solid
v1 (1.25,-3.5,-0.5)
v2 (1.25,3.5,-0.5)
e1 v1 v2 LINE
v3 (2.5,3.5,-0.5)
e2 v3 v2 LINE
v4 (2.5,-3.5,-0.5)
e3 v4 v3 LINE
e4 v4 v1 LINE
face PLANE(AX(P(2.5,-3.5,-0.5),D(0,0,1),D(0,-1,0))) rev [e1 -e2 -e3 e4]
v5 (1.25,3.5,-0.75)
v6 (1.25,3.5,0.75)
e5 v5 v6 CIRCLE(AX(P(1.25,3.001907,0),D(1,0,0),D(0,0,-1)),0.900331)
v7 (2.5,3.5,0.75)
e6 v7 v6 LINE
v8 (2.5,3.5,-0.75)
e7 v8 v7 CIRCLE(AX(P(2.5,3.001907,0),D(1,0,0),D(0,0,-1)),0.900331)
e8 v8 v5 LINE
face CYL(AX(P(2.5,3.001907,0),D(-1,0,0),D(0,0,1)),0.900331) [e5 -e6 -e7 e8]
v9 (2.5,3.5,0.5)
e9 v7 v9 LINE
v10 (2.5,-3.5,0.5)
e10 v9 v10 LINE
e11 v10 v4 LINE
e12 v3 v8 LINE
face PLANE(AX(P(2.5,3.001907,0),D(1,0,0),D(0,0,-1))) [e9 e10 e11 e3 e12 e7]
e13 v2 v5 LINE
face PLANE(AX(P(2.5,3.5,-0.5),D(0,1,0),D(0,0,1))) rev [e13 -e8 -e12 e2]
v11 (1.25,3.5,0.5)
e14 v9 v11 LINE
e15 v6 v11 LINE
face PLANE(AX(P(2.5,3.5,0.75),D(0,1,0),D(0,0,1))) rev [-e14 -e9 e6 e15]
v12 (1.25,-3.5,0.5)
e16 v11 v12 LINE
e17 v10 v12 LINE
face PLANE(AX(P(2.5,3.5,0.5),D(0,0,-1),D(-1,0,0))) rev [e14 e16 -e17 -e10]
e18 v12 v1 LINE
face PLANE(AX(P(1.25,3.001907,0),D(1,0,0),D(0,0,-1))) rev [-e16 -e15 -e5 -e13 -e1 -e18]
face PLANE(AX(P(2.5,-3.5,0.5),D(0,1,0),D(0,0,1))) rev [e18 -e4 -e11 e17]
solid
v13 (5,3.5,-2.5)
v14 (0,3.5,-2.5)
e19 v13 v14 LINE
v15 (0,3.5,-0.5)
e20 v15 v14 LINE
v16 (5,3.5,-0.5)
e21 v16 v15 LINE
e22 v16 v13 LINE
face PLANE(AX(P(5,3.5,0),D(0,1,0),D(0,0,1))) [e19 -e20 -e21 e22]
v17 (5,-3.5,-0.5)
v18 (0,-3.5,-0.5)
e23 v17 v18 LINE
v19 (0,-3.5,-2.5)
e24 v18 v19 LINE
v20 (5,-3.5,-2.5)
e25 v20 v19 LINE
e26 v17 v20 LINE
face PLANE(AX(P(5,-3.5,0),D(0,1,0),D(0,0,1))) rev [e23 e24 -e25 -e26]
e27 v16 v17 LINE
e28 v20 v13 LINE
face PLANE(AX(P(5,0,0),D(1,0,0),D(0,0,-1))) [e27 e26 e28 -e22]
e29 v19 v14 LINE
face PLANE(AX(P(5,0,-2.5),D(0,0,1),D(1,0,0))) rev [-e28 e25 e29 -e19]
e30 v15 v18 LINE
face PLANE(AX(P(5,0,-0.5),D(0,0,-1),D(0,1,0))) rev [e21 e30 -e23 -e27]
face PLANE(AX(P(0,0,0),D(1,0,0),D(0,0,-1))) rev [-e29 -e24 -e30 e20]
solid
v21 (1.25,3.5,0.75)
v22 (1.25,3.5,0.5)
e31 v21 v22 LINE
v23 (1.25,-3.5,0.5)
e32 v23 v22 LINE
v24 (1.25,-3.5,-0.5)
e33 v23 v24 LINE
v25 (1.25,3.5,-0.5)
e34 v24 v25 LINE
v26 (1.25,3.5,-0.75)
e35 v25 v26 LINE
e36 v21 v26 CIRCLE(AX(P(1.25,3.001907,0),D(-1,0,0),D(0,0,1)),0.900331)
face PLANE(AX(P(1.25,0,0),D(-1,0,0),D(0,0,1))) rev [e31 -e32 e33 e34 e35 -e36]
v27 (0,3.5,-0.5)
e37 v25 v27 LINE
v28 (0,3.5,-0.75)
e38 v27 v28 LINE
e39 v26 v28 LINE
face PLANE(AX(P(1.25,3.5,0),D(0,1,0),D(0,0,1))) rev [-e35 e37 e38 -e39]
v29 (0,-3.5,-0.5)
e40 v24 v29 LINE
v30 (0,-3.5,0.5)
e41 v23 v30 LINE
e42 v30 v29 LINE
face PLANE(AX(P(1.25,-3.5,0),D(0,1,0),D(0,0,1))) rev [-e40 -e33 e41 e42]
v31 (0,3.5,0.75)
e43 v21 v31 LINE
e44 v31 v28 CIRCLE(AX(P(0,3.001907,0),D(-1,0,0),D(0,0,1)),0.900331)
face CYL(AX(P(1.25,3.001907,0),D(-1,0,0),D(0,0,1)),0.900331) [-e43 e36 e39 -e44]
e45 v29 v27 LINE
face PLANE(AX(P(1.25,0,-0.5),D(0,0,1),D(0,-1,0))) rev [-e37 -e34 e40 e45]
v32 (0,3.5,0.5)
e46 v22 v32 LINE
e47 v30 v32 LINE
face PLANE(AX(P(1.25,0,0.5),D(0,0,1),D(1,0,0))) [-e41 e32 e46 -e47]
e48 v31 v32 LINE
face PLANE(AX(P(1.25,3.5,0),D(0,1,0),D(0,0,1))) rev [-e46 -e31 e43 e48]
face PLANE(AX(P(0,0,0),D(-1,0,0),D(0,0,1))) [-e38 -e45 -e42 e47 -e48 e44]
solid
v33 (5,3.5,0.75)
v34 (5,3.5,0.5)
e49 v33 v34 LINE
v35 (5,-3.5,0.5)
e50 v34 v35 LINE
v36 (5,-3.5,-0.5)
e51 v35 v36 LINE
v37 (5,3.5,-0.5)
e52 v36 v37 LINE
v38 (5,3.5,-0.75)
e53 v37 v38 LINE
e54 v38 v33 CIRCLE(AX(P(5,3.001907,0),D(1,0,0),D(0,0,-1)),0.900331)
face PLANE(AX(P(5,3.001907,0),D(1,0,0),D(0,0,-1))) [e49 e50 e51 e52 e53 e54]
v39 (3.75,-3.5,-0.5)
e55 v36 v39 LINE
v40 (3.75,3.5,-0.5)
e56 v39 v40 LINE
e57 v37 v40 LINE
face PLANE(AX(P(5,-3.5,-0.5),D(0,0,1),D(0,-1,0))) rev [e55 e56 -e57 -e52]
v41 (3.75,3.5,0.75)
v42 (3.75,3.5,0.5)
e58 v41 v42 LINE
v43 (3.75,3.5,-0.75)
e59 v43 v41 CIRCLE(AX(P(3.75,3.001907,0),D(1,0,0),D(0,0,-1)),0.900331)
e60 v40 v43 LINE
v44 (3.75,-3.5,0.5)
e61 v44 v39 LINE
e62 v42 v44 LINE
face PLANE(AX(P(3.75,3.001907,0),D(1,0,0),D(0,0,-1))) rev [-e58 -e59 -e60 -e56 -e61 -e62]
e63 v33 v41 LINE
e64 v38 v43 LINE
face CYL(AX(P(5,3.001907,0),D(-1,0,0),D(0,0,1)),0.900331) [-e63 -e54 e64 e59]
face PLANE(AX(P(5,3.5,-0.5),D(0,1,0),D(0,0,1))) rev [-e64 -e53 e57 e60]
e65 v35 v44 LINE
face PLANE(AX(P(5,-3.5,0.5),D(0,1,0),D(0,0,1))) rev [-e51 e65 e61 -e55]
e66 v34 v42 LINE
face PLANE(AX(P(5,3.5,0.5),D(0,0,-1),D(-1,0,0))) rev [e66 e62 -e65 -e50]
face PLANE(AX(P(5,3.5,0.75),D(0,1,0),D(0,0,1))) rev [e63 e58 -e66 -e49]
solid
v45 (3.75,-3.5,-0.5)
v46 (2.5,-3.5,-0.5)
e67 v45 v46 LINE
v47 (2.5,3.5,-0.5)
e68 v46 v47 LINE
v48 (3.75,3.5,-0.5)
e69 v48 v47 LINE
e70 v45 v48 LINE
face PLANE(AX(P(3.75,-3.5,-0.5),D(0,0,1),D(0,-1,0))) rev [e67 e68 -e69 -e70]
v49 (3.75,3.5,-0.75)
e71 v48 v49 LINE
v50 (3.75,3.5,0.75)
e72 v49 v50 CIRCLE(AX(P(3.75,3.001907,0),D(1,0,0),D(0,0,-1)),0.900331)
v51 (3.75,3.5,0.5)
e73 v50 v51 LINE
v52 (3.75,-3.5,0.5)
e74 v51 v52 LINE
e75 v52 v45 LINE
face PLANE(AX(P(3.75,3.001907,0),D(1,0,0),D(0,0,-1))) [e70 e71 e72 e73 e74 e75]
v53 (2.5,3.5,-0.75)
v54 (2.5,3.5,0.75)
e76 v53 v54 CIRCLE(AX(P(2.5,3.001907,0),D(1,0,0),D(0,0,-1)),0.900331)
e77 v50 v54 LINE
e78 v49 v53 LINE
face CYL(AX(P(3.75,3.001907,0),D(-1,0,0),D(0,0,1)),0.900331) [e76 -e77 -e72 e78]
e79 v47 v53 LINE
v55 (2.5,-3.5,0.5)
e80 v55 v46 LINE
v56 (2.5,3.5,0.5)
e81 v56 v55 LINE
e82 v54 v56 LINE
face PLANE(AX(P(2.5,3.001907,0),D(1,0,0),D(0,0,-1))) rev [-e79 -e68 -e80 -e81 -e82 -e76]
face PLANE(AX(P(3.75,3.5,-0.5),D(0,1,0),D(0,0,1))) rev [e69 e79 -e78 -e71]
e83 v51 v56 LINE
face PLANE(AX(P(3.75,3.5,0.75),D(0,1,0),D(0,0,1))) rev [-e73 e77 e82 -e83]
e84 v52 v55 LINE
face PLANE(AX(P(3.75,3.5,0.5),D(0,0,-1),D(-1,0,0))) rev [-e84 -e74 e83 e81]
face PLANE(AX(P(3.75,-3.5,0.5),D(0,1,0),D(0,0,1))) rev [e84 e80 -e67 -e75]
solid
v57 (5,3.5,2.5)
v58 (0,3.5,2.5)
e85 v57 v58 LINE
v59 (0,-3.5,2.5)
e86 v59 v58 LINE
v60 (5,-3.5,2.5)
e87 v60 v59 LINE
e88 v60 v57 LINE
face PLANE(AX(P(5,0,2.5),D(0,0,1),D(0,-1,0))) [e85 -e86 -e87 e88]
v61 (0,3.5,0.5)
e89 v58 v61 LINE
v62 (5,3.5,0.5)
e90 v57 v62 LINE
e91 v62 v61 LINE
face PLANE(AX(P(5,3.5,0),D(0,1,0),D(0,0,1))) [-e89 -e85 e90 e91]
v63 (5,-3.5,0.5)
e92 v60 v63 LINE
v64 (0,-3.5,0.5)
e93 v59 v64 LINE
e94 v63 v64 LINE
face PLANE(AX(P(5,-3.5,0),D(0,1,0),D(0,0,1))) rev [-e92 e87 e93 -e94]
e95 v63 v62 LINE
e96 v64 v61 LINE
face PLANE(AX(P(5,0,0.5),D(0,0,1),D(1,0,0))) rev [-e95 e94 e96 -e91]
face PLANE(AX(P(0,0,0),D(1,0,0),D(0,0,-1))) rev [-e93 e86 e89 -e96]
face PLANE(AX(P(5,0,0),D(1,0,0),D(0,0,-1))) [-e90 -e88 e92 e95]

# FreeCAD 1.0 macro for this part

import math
import FreeCAD as App
import Part
import Sketcher


def add_polygon(sketch, points):
    """Adds a closed chain of lines whose ends are joined by coincident constraints."""
    first, n = sketch.GeometryCount, len(points)
    for a, b in zip(points, points[1:] + points[:1]):
        sketch.addGeometry(Part.LineSegment(App.Vector(*a, 0), App.Vector(*b, 0)), False)
    for i in range(n):
        sketch.addConstraint(Sketcher.Constraint("Coincident", first + i, 2, first + (i + 1) % n, 1))

doc = App.newDocument("Part")
body = doc.addObject("PartDesign::Body", "Body")

# Sketch on YZ plane
sketch1 = body.newObject("Sketcher::SketchObject", "Sketch")
sketch1.AttachmentSupport = (doc.getObject("YZ_Plane"), [""])
sketch1.MapMode = "FlatFace"
add_polygon(sketch1, [(3.5, 2.5), (-3.5, 2.5), (-3.5, 0.5), (3.5, 0.5)])  # lines 0-3
sketch1.addConstraint([
    Sketcher.Constraint("Horizontal", 0),
    Sketcher.Constraint("Vertical", 1),
    Sketcher.Constraint("Horizontal", 2),
    Sketcher.Constraint("Vertical", 3),
    Sketcher.Constraint("DistanceX", 0, 2, 0, 1, 7.0),
    Sketcher.Constraint("DistanceY", 1, 2, 1, 1, 2.0),
    Sketcher.Constraint("DistanceX", 0, 2, -1, 1, 3.5),
    Sketcher.Constraint("DistanceY", -1, 1, 0, 2, 2.5),
])
pad1 = body.newObject("PartDesign::Pad", "Pad")
pad1.Profile = sketch1
pad1.Length = 5
body2 = doc.addObject("PartDesign::Body", "Body001")

# Sketch on YZ plane
sketch2 = body2.newObject("Sketcher::SketchObject", "Sketch001")
sketch2.AttachmentSupport = (doc.getObject("YZ_Plane001"), [""])
sketch2.MapMode = "FlatFace"
add_polygon(sketch2, [(3.5, -0.5), (-3.5, -0.5), (-3.5, -2.5), (3.5, -2.5)])  # lines 0-3
sketch2.addConstraint([
    Sketcher.Constraint("Horizontal", 0),
    Sketcher.Constraint("Vertical", 1),
    Sketcher.Constraint("Horizontal", 2),
    Sketcher.Constraint("Vertical", 3),
    Sketcher.Constraint("DistanceX", 0, 2, 0, 1, 7.0),
    Sketcher.Constraint("DistanceY", 1, 2, 1, 1, 2.0),
    Sketcher.Constraint("DistanceX", 0, 2, -1, 1, 3.5),
    Sketcher.Constraint("DistanceY", 0, 2, -1, 1, 0.5),
])
pad2 = body2.newObject("PartDesign::Pad", "Pad001")
pad2.Profile = sketch2
pad2.Length = 5
body3 = doc.addObject("PartDesign::Body", "Body002")

# Sketch on YZ plane
sketch3 = body3.newObject("Sketcher::SketchObject", "Sketch002")
sketch3.AttachmentSupport = (doc.getObject("YZ_Plane002"), [""])
sketch3.MapMode = "FlatFace"
sketch3.addGeometry([
    Part.LineSegment(App.Vector(-3.5, -0.5, 0), App.Vector(-3.5, 0.5, 0)),  # 0
    Part.LineSegment(App.Vector(-3.5, 0.5, 0), App.Vector(3.5, 0.5, 0)),  # 1
    Part.LineSegment(App.Vector(3.5, 0.5, 0), App.Vector(3.5, 0.75, 0)),  # 2
    Part.ArcOfCircle(Part.Circle(App.Vector(3, 0, 0), App.Vector(0, 0, 1), 0.9), math.radians(-56), math.radians(56)),  # 3
    Part.LineSegment(App.Vector(3.5, -0.75, 0), App.Vector(3.5, -0.5, 0)),  # 4
    Part.LineSegment(App.Vector(3.5, -0.5, 0), App.Vector(-3.5, -0.5, 0)),  # 5
], False)
sketch3.addConstraint([
    Sketcher.Constraint("Coincident", 0, 2, 1, 1),
    Sketcher.Constraint("Coincident", 1, 2, 2, 1),
    Sketcher.Constraint("Coincident", 2, 2, 3, 2),
    Sketcher.Constraint("Coincident", 3, 1, 4, 1),
    Sketcher.Constraint("Coincident", 4, 2, 5, 1),
    Sketcher.Constraint("Coincident", 5, 2, 0, 1),
    Sketcher.Constraint("Vertical", 0),
    Sketcher.Constraint("Horizontal", 1),
    Sketcher.Constraint("Vertical", 2),
    Sketcher.Constraint("Vertical", 4),
    Sketcher.Constraint("Horizontal", 5),
    Sketcher.Constraint("Symmetric", 0, 2, 4, 2, -1, 1),
    Sketcher.Constraint("Symmetric", 2, 2, 3, 1, -1),
    Sketcher.Constraint("DistanceX", 1, 1, 1, 2, 7.0),
    Sketcher.Constraint("DistanceY", 0, 1, 0, 2, 1.0),
    Sketcher.Constraint("DistanceY", 2, 1, 2, 2, 0.25),
    Sketcher.Constraint("Radius", 3, 0.900331),
])
pad3 = body3.newObject("PartDesign::Pad", "Pad002")
pad3.Profile = sketch3
pad3.Length = 1.25
body4 = doc.addObject("PartDesign::Body", "Body003")

# Sketch on YZ plane
sketch4 = body4.newObject("Sketcher::SketchObject", "Sketch003")
sketch4.AttachmentSupport = (doc.getObject("YZ_Plane003"), [""])
sketch4.MapMode = "FlatFace"
sketch4.AttachmentOffset = App.Placement(App.Vector(0, 0, 1.25), App.Rotation())
sketch4.addGeometry([
    Part.LineSegment(App.Vector(3.5, 0.75, 0), App.Vector(3.5, 0.5, 0)),  # 0
    Part.LineSegment(App.Vector(3.5, 0.5, 0), App.Vector(-3.5, 0.5, 0)),  # 1
    Part.LineSegment(App.Vector(-3.5, 0.5, 0), App.Vector(-3.5, -0.5, 0)),  # 2
    Part.LineSegment(App.Vector(-3.5, -0.5, 0), App.Vector(3.5, -0.5, 0)),  # 3
    Part.LineSegment(App.Vector(3.5, -0.5, 0), App.Vector(3.5, -0.75, 0)),  # 4
    Part.ArcOfCircle(Part.Circle(App.Vector(3, 0, 0), App.Vector(0, 0, 1), 0.9), math.radians(-56), math.radians(56)),  # 5
], False)
sketch4.addConstraint([
    Sketcher.Constraint("Coincident", 0, 2, 1, 1),
    Sketcher.Constraint("Coincident", 1, 2, 2, 1),
    Sketcher.Constraint("Coincident", 2, 2, 3, 1),
    Sketcher.Constraint("Coincident", 3, 2, 4, 1),
    Sketcher.Constraint("Coincident", 4, 2, 5, 1),
    Sketcher.Constraint("Coincident", 5, 2, 0, 1),
    Sketcher.Constraint("Vertical", 0),
    Sketcher.Constraint("Horizontal", 1),
    Sketcher.Constraint("Vertical", 2),
    Sketcher.Constraint("Horizontal", 3),
    Sketcher.Constraint("Vertical", 4),
    Sketcher.Constraint("Symmetric", 0, 2, 2, 2, -1, 1),
    Sketcher.Constraint("Symmetric", 4, 2, 5, 2, -1),
    Sketcher.Constraint("DistanceX", 1, 2, 1, 1, 7.0),
    Sketcher.Constraint("DistanceY", 2, 2, 2, 1, 1.0),
    Sketcher.Constraint("DistanceY", 0, 2, 0, 1, 0.25),
    Sketcher.Constraint("Radius", 5, 0.900331),
])
pad4 = body4.newObject("PartDesign::Pad", "Pad003")
pad4.Profile = sketch4
pad4.Length = 1.25
body5 = doc.addObject("PartDesign::Body", "Body004")

# Sketch on YZ plane
sketch5 = body5.newObject("Sketcher::SketchObject", "Sketch004")
sketch5.AttachmentSupport = (doc.getObject("YZ_Plane004"), [""])
sketch5.MapMode = "FlatFace"
sketch5.AttachmentOffset = App.Placement(App.Vector(0, 0, 2.5), App.Rotation())
sketch5.addGeometry([
    Part.LineSegment(App.Vector(3.5, 0.75, 0), App.Vector(3.5, 0.5, 0)),  # 0
    Part.LineSegment(App.Vector(3.5, 0.5, 0), App.Vector(-3.5, 0.5, 0)),  # 1
    Part.LineSegment(App.Vector(-3.5, 0.5, 0), App.Vector(-3.5, -0.5, 0)),  # 2
    Part.LineSegment(App.Vector(-3.5, -0.5, 0), App.Vector(3.5, -0.5, 0)),  # 3
    Part.LineSegment(App.Vector(3.5, -0.5, 0), App.Vector(3.5, -0.75, 0)),  # 4
    Part.ArcOfCircle(Part.Circle(App.Vector(3, 0, 0), App.Vector(0, 0, 1), 0.9), math.radians(-56), math.radians(56)),  # 5
], False)
sketch5.addConstraint([
    Sketcher.Constraint("Coincident", 0, 2, 1, 1),
    Sketcher.Constraint("Coincident", 1, 2, 2, 1),
    Sketcher.Constraint("Coincident", 2, 2, 3, 1),
    Sketcher.Constraint("Coincident", 3, 2, 4, 1),
    Sketcher.Constraint("Coincident", 4, 2, 5, 1),
    Sketcher.Constraint("Coincident", 5, 2, 0, 1),
    Sketcher.Constraint("Vertical", 0),
    Sketcher.Constraint("Horizontal", 1),
    Sketcher.Constraint("Vertical", 2),
    Sketcher.Constraint("Horizontal", 3),
    Sketcher.Constraint("Vertical", 4),
    Sketcher.Constraint("Symmetric", 0, 2, 2, 2, -1, 1),
    Sketcher.Constraint("Symmetric", 4, 2, 5, 2, -1),
    Sketcher.Constraint("DistanceX", 1, 2, 1, 1, 7.0),
    Sketcher.Constraint("DistanceY", 2, 2, 2, 1, 1.0),
    Sketcher.Constraint("DistanceY", 0, 2, 0, 1, 0.25),
    Sketcher.Constraint("Radius", 5, 0.900331),
])
pad5 = body5.newObject("PartDesign::Pad", "Pad004")
pad5.Profile = sketch5
pad5.Length = 1.25
body6 = doc.addObject("PartDesign::Body", "Body005")

# Sketch on YZ plane
sketch6 = body6.newObject("Sketcher::SketchObject", "Sketch005")
sketch6.AttachmentSupport = (doc.getObject("YZ_Plane005"), [""])
sketch6.MapMode = "FlatFace"
sketch6.AttachmentOffset = App.Placement(App.Vector(0, 0, 3.75), App.Rotation())
sketch6.addGeometry([
    Part.LineSegment(App.Vector(3.5, 0.75, 0), App.Vector(3.5, 0.5, 0)),  # 0
    Part.LineSegment(App.Vector(3.5, 0.5, 0), App.Vector(-3.5, 0.5, 0)),  # 1
    Part.LineSegment(App.Vector(-3.5, 0.5, 0), App.Vector(-3.5, -0.5, 0)),  # 2
    Part.LineSegment(App.Vector(-3.5, -0.5, 0), App.Vector(3.5, -0.5, 0)),  # 3
    Part.LineSegment(App.Vector(3.5, -0.5, 0), App.Vector(3.5, -0.75, 0)),  # 4
    Part.ArcOfCircle(Part.Circle(App.Vector(3, 0, 0), App.Vector(0, 0, 1), 0.9), math.radians(-56), math.radians(56)),  # 5
], False)
sketch6.addConstraint([
    Sketcher.Constraint("Coincident", 0, 2, 1, 1),
    Sketcher.Constraint("Coincident", 1, 2, 2, 1),
    Sketcher.Constraint("Coincident", 2, 2, 3, 1),
    Sketcher.Constraint("Coincident", 3, 2, 4, 1),
    Sketcher.Constraint("Coincident", 4, 2, 5, 1),
    Sketcher.Constraint("Coincident", 5, 2, 0, 1),
    Sketcher.Constraint("Vertical", 0),
    Sketcher.Constraint("Horizontal", 1),
    Sketcher.Constraint("Vertical", 2),
    Sketcher.Constraint("Horizontal", 3),
    Sketcher.Constraint("Vertical", 4),
    Sketcher.Constraint("Symmetric", 0, 2, 2, 2, -1, 1),
    Sketcher.Constraint("Symmetric", 4, 2, 5, 2, -1),
    Sketcher.Constraint("DistanceX", 1, 2, 1, 1, 7.0),
    Sketcher.Constraint("DistanceY", 2, 2, 2, 1, 1.0),
    Sketcher.Constraint("DistanceY", 0, 2, 0, 1, 0.25),
    Sketcher.Constraint("Radius", 5, 0.900331),
])
pad6 = body6.newObject("PartDesign::Pad", "Pad005")
pad6.Profile = sketch6
pad6.Length = 1.25

doc.recompute()
